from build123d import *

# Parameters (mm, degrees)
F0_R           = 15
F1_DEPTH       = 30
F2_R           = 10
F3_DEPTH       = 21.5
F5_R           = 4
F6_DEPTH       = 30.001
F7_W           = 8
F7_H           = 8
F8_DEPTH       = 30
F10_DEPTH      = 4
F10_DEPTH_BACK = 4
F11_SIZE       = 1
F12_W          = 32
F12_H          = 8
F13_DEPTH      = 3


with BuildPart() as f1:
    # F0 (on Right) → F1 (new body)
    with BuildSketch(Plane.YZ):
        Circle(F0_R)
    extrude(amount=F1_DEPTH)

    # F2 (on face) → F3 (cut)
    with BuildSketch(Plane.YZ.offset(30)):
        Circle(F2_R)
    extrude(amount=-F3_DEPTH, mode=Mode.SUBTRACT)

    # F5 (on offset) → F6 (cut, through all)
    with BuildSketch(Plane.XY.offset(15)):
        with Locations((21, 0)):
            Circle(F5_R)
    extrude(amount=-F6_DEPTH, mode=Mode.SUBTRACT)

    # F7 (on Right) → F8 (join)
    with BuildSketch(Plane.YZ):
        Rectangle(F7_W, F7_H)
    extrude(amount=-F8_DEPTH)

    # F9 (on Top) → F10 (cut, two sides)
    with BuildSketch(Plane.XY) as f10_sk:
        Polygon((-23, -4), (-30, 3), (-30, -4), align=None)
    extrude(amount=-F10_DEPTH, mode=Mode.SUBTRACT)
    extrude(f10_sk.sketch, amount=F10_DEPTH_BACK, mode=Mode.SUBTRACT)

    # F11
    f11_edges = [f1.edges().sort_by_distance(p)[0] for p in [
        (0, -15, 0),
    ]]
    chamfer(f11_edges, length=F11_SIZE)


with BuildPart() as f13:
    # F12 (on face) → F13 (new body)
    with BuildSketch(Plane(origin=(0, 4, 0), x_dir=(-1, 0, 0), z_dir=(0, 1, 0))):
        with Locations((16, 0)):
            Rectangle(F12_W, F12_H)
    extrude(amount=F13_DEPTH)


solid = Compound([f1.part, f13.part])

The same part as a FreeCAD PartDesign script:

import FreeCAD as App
import Part
import Sketcher
Q = App.Units.Quantity


def edges_at(feature, points):
    """Names of the edges that pass closest to the given points."""
    edges = feature.Shape.Edges
    near = lambda p: min(range(len(edges)), key=lambda i: edges[i].distToShape(Part.Vertex(*p))[0])
    return sorted({f"Edge{near(p) + 1}" for p in points})

doc = App.newDocument("Part")
body = doc.addObject("PartDesign::Body", "Body")

# Sketch on YZ plane
sketch1 = body.newObject("Sketcher::SketchObject", "Sketch")
sketch1.AttachmentSupport = (doc.getObject("YZ_Plane"), [""])
sketch1.MapMode = "FlatFace"
sketch1.addGeometry(Part.Circle(App.Vector(0, 0, 0), App.Vector(0, 0, 1), 15), False)
sketch1.addConstraint(Sketcher.Constraint("Coincident", 0, 3, -1, 1))
sketch1.addConstraint(Sketcher.Constraint("Diameter", 0, Q("30 mm")))
pad1 = body.newObject("PartDesign::Pad", "Pad")
pad1.Profile = sketch1
pad1.Length = 30

# Sketch on YZ plane
sketch2 = body.newObject("Sketcher::SketchObject", "Sketch001")
sketch2.AttachmentSupport = (doc.getObject("YZ_Plane"), [""])
sketch2.MapMode = "FlatFace"
sketch2.AttachmentOffset = App.Placement(App.Vector(0, 0, 30), App.Rotation())
sketch2.addGeometry(Part.Circle(App.Vector(0, 0, 0), App.Vector(0, 0, 1), 10), False)
sketch2.addConstraint(Sketcher.Constraint("Coincident", 0, 3, -1, 1))
sketch2.addConstraint(Sketcher.Constraint("Diameter", 0, Q("20 mm")))
pocket1 = body.newObject("PartDesign::Pocket", "Pocket")
pocket1.Profile = sketch2
pocket1.Length = 21.5

# Sketch on XY plane
sketch3 = body.newObject("Sketcher::SketchObject", "Sketch002")
sketch3.AttachmentSupport = (doc.getObject("XY_Plane"), [""])
sketch3.MapMode = "FlatFace"
sketch3.AttachmentOffset = App.Placement(App.Vector(0, 0, 15), App.Rotation())
sketch3.addGeometry(Part.Circle(App.Vector(21, 0, 0), App.Vector(0, 0, 1), 4), False)
sketch3.addConstraint(Sketcher.Constraint("PointOnObject", 0, 3, -1))
sketch3.addConstraint(Sketcher.Constraint("Diameter", 0, Q("8 mm")))
sketch3.addConstraint(Sketcher.Constraint("DistanceX", -1, 1, 0, 3, Q("21 mm")))
pocket2 = body.newObject("PartDesign::Pocket", "Pocket001")
pocket2.Profile = sketch3
pocket2.Type = "ThroughAll"

# Sketch on YZ plane
sketch4 = body.newObject("Sketcher::SketchObject", "Sketch003")
sketch4.AttachmentSupport = (doc.getObject("YZ_Plane"), [""])
sketch4.MapMode = "FlatFace"
sketch4.addGeometry(Part.LineSegment(App.Vector(-4, 4, 0), App.Vector(-4, -4, 0)), False)
sketch4.addGeometry(Part.LineSegment(App.Vector(-4, -4, 0), App.Vector(4, -4, 0)), False)
sketch4.addGeometry(Part.LineSegment(App.Vector(4, -4, 0), App.Vector(4, 4, 0)), False)
sketch4.addGeometry(Part.LineSegment(App.Vector(4, 4, 0), App.Vector(-4, 4, 0)), False)
sketch4.addConstraint(Sketcher.Constraint("Coincident", 0, 2, 1, 1))
sketch4.addConstraint(Sketcher.Constraint("Coincident", 1, 2, 2, 1))
sketch4.addConstraint(Sketcher.Constraint("Coincident", 2, 2, 3, 1))
sketch4.addConstraint(Sketcher.Constraint("Coincident", 3, 2, 0, 1))
sketch4.addConstraint(Sketcher.Constraint("Vertical", 0))
sketch4.addConstraint(Sketcher.Constraint("Horizontal", 1))
sketch4.addConstraint(Sketcher.Constraint("Vertical", 2))
sketch4.addConstraint(Sketcher.Constraint("Horizontal", 3))
sketch4.addConstraint(Sketcher.Constraint("Symmetric", 0, 2, 2, 2, -1, 1))
sketch4.addConstraint(Sketcher.Constraint("Equal", 3, 0))
sketch4.addConstraint(Sketcher.Constraint("DistanceX", 1, 1, 1, 2, Q("8 mm")))
pad2 = body.newObject("PartDesign::Pad", "Pad001")
pad2.Profile = sketch4
pad2.Length = 30
pad2.Reversed = True

# Sketch on XY plane
sketch5 = body.newObject("Sketcher::SketchObject", "Sketch004")
sketch5.AttachmentSupport = (doc.getObject("XY_Plane"), [""])
sketch5.MapMode = "FlatFace"
sketch5.addGeometry(Part.LineSegment(App.Vector(-23, -4, 0), App.Vector(-30, 3, 0)), False)
sketch5.addGeometry(Part.LineSegment(App.Vector(-30, 3, 0), App.Vector(-30, -4, 0)), False)
sketch5.addGeometry(Part.LineSegment(App.Vector(-30, -4, 0), App.Vector(-23, -4, 0)), False)
sketch5.addConstraint(Sketcher.Constraint("Coincident", 0, 2, 1, 1))
sketch5.addConstraint(Sketcher.Constraint("Coincident", 1, 2, 2, 1))
sketch5.addConstraint(Sketcher.Constraint("Coincident", 2, 2, 0, 1))
sketch5.addConstraint(Sketcher.Constraint("Vertical", 1))
sketch5.addConstraint(Sketcher.Constraint("Horizontal", 2))
sketch5.addConstraint(Sketcher.Constraint("Equal", 2, 1))
sketch5.addConstraint(Sketcher.Constraint("DistanceX", 2, 1, 2, 2, Q("7 mm")))
sketch5.addConstraint(Sketcher.Constraint("DistanceX", 0, 2, -1, 1, Q("30 mm")))
sketch5.addConstraint(Sketcher.Constraint("DistanceY", -1, 1, 0, 2, Q("3 mm")))
pocket3 = body.newObject("PartDesign::Pocket", "Pocket002")
pocket3.Profile = sketch5
pocket3.Type = "ThroughAll"
pocket3.Midplane = True
doc.recompute()

chamfer = body.newObject("PartDesign::Chamfer", "Chamfer")
chamfer.Base = (pocket3, edges_at(pocket3, [(0, -15, 0)]))
chamfer.Size = 1
body2 = doc.addObject("PartDesign::Body", "Body001")

# Sketch on XZ plane
sketch6 = body2.newObject("Sketcher::SketchObject", "Sketch005")
sketch6.AttachmentSupport = (doc.getObject("XZ_Plane001"), [""])
sketch6.MapMode = "FlatFace"
sketch6.AttachmentOffset = App.Placement(App.Vector(0, 0, -4), App.Rotation())
sketch6.addGeometry(Part.LineSegment(App.Vector(0, 4, 0), App.Vector(0, -4, 0)), False)
sketch6.addGeometry(Part.LineSegment(App.Vector(0, -4, 0), App.Vector(-32, -4, 0)), False)
sketch6.addGeometry(Part.LineSegment(App.Vector(-32, -4, 0), App.Vector(-32, 4, 0)), False)
sketch6.addGeometry(Part.LineSegment(App.Vector(-32, 4, 0), App.Vector(0, 4, 0)), False)
sketch6.addConstraint(Sketcher.Constraint("Coincident", 0, 2, 1, 1))
sketch6.addConstraint(Sketcher.Constraint("Coincident", 1, 2, 2, 1))
sketch6.addConstraint(Sketcher.Constraint("Coincident", 2, 2, 3, 1))
sketch6.addConstraint(Sketcher.Constraint("Coincident", 3, 2, 0, 1))
sketch6.addConstraint(Sketcher.Constraint("Vertical", 0))
sketch6.addConstraint(Sketcher.Constraint("Horizontal", 1))
sketch6.addConstraint(Sketcher.Constraint("Vertical", 2))
sketch6.addConstraint(Sketcher.Constraint("Horizontal", 3))
sketch6.addConstraint(Sketcher.Constraint("Symmetric", 0, 2, 3, 2, -1, 1))
sketch6.addConstraint(Sketcher.Constraint("DistanceX", 1, 2, 1, 1, Q("32 mm")))
sketch6.addConstraint(Sketcher.Constraint("DistanceY", 0, 2, 0, 1, Q("8 mm")))
pad3 = body2.newObject("PartDesign::Pad", "Pad002")
pad3.Profile = sketch6
pad3.Length = 3
pad3.Reversed = True

doc.recompute()
